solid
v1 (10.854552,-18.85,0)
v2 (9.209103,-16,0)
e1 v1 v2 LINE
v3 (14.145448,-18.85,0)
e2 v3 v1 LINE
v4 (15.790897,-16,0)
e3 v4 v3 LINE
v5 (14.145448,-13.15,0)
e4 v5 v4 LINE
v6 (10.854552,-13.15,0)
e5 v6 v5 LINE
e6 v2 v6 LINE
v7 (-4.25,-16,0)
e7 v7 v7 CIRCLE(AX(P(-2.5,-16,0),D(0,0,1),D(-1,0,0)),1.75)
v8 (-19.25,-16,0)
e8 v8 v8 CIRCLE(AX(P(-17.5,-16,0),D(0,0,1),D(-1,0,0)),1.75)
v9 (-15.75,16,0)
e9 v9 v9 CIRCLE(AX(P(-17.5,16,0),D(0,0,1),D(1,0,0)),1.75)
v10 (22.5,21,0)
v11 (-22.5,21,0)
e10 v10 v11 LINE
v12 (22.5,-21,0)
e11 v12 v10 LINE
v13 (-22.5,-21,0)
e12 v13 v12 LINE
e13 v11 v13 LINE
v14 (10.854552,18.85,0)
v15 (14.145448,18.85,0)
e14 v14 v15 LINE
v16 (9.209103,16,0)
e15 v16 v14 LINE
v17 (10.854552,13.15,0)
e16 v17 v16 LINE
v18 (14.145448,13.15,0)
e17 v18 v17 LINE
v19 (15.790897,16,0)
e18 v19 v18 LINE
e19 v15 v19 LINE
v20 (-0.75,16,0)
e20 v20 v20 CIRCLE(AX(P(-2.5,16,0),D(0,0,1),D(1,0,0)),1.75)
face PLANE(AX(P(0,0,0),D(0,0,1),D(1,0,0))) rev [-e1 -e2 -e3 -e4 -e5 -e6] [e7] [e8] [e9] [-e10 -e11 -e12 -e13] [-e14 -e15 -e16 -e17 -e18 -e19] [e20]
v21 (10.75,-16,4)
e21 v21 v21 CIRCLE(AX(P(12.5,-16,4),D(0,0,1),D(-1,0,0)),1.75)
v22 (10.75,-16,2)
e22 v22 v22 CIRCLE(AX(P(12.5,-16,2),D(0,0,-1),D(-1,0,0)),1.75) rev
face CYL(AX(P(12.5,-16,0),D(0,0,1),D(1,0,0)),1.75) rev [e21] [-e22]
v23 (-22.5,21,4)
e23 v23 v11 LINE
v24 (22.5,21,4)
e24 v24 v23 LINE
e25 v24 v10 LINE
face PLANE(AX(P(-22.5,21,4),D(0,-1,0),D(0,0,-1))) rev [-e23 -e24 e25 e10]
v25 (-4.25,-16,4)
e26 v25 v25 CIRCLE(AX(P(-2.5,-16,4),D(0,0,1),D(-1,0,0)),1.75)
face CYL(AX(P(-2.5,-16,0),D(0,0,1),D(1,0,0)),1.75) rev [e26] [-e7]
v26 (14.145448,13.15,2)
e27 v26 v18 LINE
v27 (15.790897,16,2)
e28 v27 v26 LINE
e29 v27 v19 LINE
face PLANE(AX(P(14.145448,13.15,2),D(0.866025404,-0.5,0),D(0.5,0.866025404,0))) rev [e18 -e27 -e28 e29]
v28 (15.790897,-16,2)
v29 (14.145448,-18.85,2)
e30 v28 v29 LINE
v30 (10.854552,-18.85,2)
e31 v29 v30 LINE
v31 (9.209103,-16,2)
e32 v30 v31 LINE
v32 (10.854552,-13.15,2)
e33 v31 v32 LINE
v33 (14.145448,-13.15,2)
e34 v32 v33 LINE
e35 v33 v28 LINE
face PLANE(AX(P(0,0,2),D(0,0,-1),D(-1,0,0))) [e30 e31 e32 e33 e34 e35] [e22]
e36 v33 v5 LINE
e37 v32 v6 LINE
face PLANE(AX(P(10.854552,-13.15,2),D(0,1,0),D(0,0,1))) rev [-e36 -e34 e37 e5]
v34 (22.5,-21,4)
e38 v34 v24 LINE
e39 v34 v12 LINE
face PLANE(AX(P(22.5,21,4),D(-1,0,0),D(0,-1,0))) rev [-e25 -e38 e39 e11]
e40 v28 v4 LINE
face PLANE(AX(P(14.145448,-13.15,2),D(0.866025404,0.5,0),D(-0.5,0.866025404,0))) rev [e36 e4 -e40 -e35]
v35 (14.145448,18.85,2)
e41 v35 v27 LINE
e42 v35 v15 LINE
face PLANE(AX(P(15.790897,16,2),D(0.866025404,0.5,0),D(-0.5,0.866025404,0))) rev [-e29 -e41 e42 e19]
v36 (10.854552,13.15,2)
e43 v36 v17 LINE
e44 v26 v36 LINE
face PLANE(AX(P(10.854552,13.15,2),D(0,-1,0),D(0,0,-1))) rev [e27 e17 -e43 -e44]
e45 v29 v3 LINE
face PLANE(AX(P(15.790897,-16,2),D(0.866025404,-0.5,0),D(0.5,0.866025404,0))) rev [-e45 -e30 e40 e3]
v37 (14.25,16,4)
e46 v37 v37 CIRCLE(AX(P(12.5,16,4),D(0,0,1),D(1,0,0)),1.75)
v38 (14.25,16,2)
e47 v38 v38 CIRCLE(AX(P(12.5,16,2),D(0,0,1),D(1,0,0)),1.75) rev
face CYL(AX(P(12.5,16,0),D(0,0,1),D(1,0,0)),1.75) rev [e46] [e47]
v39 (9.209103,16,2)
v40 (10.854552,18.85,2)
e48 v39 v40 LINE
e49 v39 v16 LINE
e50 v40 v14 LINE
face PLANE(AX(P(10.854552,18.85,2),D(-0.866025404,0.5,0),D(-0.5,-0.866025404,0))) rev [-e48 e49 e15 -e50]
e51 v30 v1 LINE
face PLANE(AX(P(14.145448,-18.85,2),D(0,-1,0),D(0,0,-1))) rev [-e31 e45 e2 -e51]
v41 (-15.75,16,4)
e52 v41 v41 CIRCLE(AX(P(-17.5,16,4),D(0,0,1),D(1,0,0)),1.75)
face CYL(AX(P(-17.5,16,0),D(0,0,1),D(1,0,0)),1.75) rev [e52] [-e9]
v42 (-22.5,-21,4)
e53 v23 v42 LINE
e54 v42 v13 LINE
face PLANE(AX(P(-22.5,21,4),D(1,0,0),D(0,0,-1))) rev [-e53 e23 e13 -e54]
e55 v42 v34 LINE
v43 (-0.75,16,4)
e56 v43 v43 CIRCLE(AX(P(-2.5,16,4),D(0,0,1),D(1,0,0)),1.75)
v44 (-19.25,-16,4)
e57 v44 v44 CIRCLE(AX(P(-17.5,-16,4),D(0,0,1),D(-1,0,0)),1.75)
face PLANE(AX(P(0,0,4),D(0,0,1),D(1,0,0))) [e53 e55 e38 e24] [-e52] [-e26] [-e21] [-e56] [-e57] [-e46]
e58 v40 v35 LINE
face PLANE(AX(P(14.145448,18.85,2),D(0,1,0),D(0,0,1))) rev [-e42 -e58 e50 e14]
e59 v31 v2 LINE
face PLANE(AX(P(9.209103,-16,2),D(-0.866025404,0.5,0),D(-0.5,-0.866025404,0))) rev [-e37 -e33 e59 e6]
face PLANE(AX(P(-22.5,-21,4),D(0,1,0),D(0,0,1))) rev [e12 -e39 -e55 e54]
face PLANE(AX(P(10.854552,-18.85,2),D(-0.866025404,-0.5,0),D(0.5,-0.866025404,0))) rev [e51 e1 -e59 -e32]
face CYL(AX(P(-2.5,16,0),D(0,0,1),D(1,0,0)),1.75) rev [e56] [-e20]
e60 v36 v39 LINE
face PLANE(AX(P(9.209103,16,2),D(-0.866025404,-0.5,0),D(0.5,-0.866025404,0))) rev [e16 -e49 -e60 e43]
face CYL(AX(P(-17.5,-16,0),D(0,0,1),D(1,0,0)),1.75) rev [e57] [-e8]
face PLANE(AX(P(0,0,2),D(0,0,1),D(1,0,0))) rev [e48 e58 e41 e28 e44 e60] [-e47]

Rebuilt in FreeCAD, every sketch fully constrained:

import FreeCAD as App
import Part
import Sketcher
from FreeCAD import Vector
Q = App.Units.Quantity


def add_polygon(sketch, points):
    """Adds a closed chain of lines whose ends are joined by coincident constraints."""
    first, n = sketch.GeometryCount, len(points)
    for a, b in zip(points, points[1:] + points[:1]):
        sketch.addGeometry(Part.LineSegment(App.Vector(*a, 0), App.Vector(*b, 0)), False)
    for i in range(n):
        sketch.addConstraint(Sketcher.Constraint("Coincident", first + i, 2, first + (i + 1) % n, 1))

doc = App.newDocument("Part")
params = doc.addObject("Spreadsheet::Sheet", "Params")
for row, (alias, value) in enumerate([
    ("sketch1_width", "45 mm"),
    ("sketch1_height", "42 mm"),
    ("pad1_length", "4 mm"),
    ("sketch2_diameter", "3.5 mm"),
    ("sketch3_diameter", "3.5 mm"),
    ("pocket3_length", "2 mm"),
], start=1):
    params.set(f"A{row}", alias)
    params.set(f"B{row}", "=" + value)
    params.setAlias(f"B{row}", alias)

body = doc.addObject("PartDesign::Body", "Body")

# Sketch on XY plane
sketch1 = body.newObject("Sketcher::SketchObject", "Sketch")
sketch1.AttachmentSupport = (doc.getObject("XY_Plane"), [""])
sketch1.MapMode = "FlatFace"
add_polygon(sketch1, [(-22.5, 21), (-22.5, -21), (22.5, -21), (22.5, 21)])  # lines 0-3
sketch1.addConstraint([
    Sketcher.Constraint("Vertical", 0),
    Sketcher.Constraint("Horizontal", 1),
    Sketcher.Constraint("Vertical", 2),
    Sketcher.Constraint("Horizontal", 3),
    Sketcher.Constraint("Symmetric", 0, 2, 2, 2, -1, 1),
    Sketcher.Constraint("DistanceX", 1, 1, 1, 2, Q("45 mm")),
    Sketcher.Constraint("DistanceY", 0, 2, 0, 1, Q("42 mm")),
])
sketch1.setExpression("Constraints[9]", "Params.sketch1_width")
sketch1.setExpression("Constraints[10]", "Params.sketch1_height")
pad1 = body.newObject("PartDesign::Pad", "Pad")
pad1.Profile = sketch1
pad1.setExpression("Length", "Params.pad1_length")

# Sketch on XY plane
sketch2 = body.newObject("Sketcher::SketchObject", "Sketch001")
sketch2.AttachmentSupport = (doc.getObject("XY_Plane"), [""])
sketch2.MapMode = "FlatFace"
sketch2.AttachmentOffset = App.Placement(Vector(0, 0, 4), App.Rotation())
sketch2.addGeometry([
    Part.Circle(Vector(-17.5, 16, 0), Vector(0, 0, 1), 1.75),
    Part.Circle(Vector(-2.5, 16, 0), Vector(0, 0, 1), 1.75),
    Part.Circle(Vector(-2.5, -16, 0), Vector(0, 0, 1), 1.75),
    Part.Circle(Vector(-17.5, -16, 0), Vector(0, 0, 1), 1.75),
], False)
sketch2.addConstraint([
    Sketcher.Constraint("Equal", 0, 1),
    Sketcher.Constraint("Equal", 1, 2),
    Sketcher.Constraint("Equal", 2, 3),
    Sketcher.Constraint("Symmetric", 1, 3, 2, 3, -1),
    Sketcher.Constraint("Symmetric", 0, 3, 3, 3, -1),
    Sketcher.Constraint("Horizontal", 0, 3, 1, 3),
    Sketcher.Constraint("Diameter", 0, Q("3.5 mm")),
    Sketcher.Constraint("DistanceY", -1, 1, 0, 3, Q("16 mm")),
    Sketcher.Constraint("DistanceX", 0, 3, 1, 3, Q("15 mm")),
    Sketcher.Constraint("DistanceX", 0, 3, -1, 1, Q("17.5 mm")),
])
sketch2.setExpression("Constraints[6]", "Params.sketch2_diameter")
pocket1 = body.newObject("PartDesign::Pocket", "Pocket")
pocket1.Profile = sketch2
pocket1.Type = "ThroughAll"

# Sketch on XY plane
sketch3 = body.newObject("Sketcher::SketchObject", "Sketch002")
sketch3.AttachmentSupport = (doc.getObject("XY_Plane"), [""])
sketch3.MapMode = "FlatFace"
sketch3.AttachmentOffset = App.Placement(Vector(0, 0, 4), App.Rotation())
sketch3.addGeometry([
    Part.Circle(Vector(12.5, 16, 0), Vector(0, 0, 1), 1.75),
    Part.Circle(Vector(12.5, -16, 0), Vector(0, 0, 1), 1.75),
], False)
sketch3.addConstraint([
    Sketcher.Constraint("Equal", 0, 1),
    Sketcher.Constraint("Symmetric", 0, 3, 1, 3, -1),
    Sketcher.Constraint("Diameter", 0, Q("3.5 mm")),
    Sketcher.Constraint("DistanceY", -1, 1, 0, 3, Q("16 mm")),
    Sketcher.Constraint("DistanceX", -1, 1, 0, 3, Q("12.5 mm")),
])
sketch3.setExpression("Constraints[2]", "Params.sketch3_diameter")
pocket2 = body.newObject("PartDesign::Pocket", "Pocket001")
pocket2.Profile = sketch3
pocket2.Type = "ThroughAll"

# Sketch on XY plane
sketch4 = body.newObject("Sketcher::SketchObject", "Sketch003")
sketch4.AttachmentSupport = (doc.getObject("XY_Plane"), [""])
sketch4.MapMode = "FlatFace"
add_polygon(sketch4, [(9.209103, -16), (10.854552, -13.15), (14.145448, -13.15), (15.790897, -16), (14.145448, -18.85), (10.854552, -18.85)])  # lines 0-5
add_polygon(sketch4, [(9.209103, 16), (10.854552, 18.85), (14.145448, 18.85), (15.790897, 16), (14.145448, 13.15), (10.854552, 13.15)])  # lines 6-11
sketch4.addConstraint([
    Sketcher.Constraint("Horizontal", 1),
    Sketcher.Constraint("Horizontal", 4),
    Sketcher.Constraint("Horizontal", 7),
    Sketcher.Constraint("Horizontal", 10),
    Sketcher.Constraint("Symmetric", 4, 2, 6, 2, -1),
    Sketcher.Constraint("Symmetric", 2, 2, 8, 2, -1),
    Sketcher.Constraint("Symmetric", 1, 2, 9, 2, -1),
    Sketcher.Constraint("Symmetric", 5, 2, 11, 2, -1),
    Sketcher.Constraint("Parallel", 0, 3),
    Sketcher.Constraint("Parallel", 2, 5),
    Sketcher.Constraint("Parallel", 3, 6),
    Sketcher.Constraint("Parallel", 5, 8),
    Sketcher.Constraint("Parallel", 8, 11),
    Sketcher.Constraint("Horizontal", 2, 2, 5, 2),
    Sketcher.Constraint("Vertical", 1, 2, 3, 2),
    Sketcher.Constraint("Angle", 0, Q("60 deg")),
    Sketcher.Constraint("DistanceY", 2, 2, -1, 1, Q("16 mm")),
    Sketcher.Constraint("DistanceY", 3, 2, 1, 2, Q("5.7 mm")),
    Sketcher.Constraint("DistanceX", 1, 1, 1, 2, Q("3.290897 mm")),
    Sketcher.Constraint("DistanceX", -1, 1, 0, 2, Q("10.854552 mm")),
])
pocket3 = body.newObject("PartDesign::Pocket", "Pocket002")
pocket3.Profile = sketch4
pocket3.setExpression("Length", "Params.pocket3_length")
pocket3.Reversed = True

doc.recompute()
